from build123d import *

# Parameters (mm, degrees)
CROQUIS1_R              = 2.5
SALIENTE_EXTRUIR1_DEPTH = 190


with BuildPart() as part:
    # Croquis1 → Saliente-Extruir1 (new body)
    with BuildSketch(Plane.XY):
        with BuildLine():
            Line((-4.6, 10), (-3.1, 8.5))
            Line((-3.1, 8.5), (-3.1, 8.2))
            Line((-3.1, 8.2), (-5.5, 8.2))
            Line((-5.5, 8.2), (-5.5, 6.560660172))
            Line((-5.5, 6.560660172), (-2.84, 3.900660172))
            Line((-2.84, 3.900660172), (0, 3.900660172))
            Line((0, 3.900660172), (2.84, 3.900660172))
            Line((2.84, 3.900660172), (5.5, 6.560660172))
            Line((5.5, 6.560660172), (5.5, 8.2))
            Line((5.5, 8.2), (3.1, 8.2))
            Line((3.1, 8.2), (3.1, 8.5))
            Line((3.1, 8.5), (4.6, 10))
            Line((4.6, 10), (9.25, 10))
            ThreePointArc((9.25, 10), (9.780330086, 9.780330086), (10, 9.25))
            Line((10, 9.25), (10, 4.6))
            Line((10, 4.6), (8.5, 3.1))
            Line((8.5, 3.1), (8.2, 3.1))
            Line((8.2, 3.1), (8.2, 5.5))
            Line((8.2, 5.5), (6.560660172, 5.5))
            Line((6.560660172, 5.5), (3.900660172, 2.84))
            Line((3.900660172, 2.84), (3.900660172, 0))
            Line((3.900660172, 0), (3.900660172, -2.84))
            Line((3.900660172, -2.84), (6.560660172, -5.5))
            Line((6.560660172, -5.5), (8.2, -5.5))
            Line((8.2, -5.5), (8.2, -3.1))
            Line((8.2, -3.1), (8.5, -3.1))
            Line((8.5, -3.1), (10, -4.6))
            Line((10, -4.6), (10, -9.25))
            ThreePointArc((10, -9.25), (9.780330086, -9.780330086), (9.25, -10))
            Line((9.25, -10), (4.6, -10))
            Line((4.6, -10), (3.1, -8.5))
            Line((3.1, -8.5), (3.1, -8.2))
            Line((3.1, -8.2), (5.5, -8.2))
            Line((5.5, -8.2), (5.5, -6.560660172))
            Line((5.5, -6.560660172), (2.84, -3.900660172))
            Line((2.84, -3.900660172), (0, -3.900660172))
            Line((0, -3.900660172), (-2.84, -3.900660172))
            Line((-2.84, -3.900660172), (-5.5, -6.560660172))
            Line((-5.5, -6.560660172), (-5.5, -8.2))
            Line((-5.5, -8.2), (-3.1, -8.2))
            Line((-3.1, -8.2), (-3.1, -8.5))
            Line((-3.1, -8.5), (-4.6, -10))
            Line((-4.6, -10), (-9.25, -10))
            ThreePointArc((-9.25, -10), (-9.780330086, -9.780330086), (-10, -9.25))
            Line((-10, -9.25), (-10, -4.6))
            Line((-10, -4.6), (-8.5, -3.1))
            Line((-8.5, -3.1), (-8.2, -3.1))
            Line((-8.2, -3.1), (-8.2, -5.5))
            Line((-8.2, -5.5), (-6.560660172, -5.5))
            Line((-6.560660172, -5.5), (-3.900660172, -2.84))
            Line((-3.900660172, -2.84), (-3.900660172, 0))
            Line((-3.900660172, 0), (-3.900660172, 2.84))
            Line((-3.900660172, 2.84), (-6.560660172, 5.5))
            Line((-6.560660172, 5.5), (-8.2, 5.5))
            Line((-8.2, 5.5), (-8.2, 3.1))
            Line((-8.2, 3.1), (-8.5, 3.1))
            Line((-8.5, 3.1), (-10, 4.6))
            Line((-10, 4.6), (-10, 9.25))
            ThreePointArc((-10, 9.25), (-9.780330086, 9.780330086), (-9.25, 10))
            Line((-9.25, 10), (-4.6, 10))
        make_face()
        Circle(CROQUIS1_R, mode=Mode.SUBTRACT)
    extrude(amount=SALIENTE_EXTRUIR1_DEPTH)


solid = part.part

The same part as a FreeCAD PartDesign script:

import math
import FreeCAD as App
import Part
import Sketcher
Q = App.Units.Quantity

doc = App.newDocument("Part")
params = doc.addObject("Spreadsheet::Sheet", "Params")
for row, (alias, value) in enumerate([
    ("sketch1_diameter", "5 mm"),
    ("sketch1_radius", "0.75 mm"),
    ("sketch1_width", "0.3 mm"),
    ("sketch1_width2", "2.4 mm"),
    ("sketch1_width3", "4.65 mm"),
    ("pad1_length", "190 mm"),
], start=1):
    params.set(f"A{row}", alias)
    params.set(f"B{row}", "=" + value)
    params.setAlias(f"B{row}", alias)

body = doc.addObject("PartDesign::Body", "Body")

# Sketch on XY plane
sketch1 = body.newObject("Sketcher::SketchObject", "Sketch")
sketch1.AttachmentSupport = (doc.getObject("XY_Plane"), [""])
sketch1.MapMode = "FlatFace"
sketch1.addGeometry([
    Part.LineSegment(App.Vector(-3.1, 8.5, 0), App.Vector(-4.6, 10, 0)),  # 0
    Part.LineSegment(App.Vector(-4.6, 10, 0), App.Vector(-9.25, 10, 0)),  # 1
    Part.ArcOfCircle(Part.Circle(App.Vector(-9.25, 9.25, 0), App.Vector(0, 0, 1), 0.75), math.radians(90), math.radians(180)),  # 2
    Part.LineSegment(App.Vector(-10, 9.25, 0), App.Vector(-10, 4.6, 0)),  # 3
    Part.LineSegment(App.Vector(-10, 4.6, 0), App.Vector(-8.5, 3.1, 0)),  # 4
    Part.LineSegment(App.Vector(-8.5, 3.1, 0), App.Vector(-8.2, 3.1, 0)),  # 5
    Part.LineSegment(App.Vector(-8.2, 3.1, 0), App.Vector(-8.2, 5.5, 0)),  # 6
    Part.LineSegment(App.Vector(-8.2, 5.5, 0), App.Vector(-6.56, 5.5, 0)),  # 7
    Part.LineSegment(App.Vector(-6.56, 5.5, 0), App.Vector(-3.9, 2.84, 0)),  # 8
    Part.LineSegment(App.Vector(-3.9, 2.84, 0), App.Vector(-3.9, -2.84, 0)),  # 9
    Part.LineSegment(App.Vector(-3.9, -2.84, 0), App.Vector(-6.56, -5.5, 0)),  # 10
    Part.LineSegment(App.Vector(-6.56, -5.5, 0), App.Vector(-8.2, -5.5, 0)),  # 11
    Part.LineSegment(App.Vector(-8.2, -5.5, 0), App.Vector(-8.2, -3.1, 0)),  # 12
    Part.LineSegment(App.Vector(-8.2, -3.1, 0), App.Vector(-8.5, -3.1, 0)),  # 13
    Part.LineSegment(App.Vector(-8.5, -3.1, 0), App.Vector(-10, -4.6, 0)),  # 14
    Part.LineSegment(App.Vector(-10, -4.6, 0), App.Vector(-10, -9.25, 0)),  # 15
    Part.ArcOfCircle(Part.Circle(App.Vector(-9.25, -9.25, 0), App.Vector(0, 0, 1), 0.75), math.radians(180), math.radians(270)),  # 16
    Part.LineSegment(App.Vector(-9.25, -10, 0), App.Vector(-4.6, -10, 0)),  # 17
    Part.LineSegment(App.Vector(-4.6, -10, 0), App.Vector(-3.1, -8.5, 0)),  # 18
    Part.LineSegment(App.Vector(-3.1, -8.5, 0), App.Vector(-3.1, -8.2, 0)),  # 19
    Part.LineSegment(App.Vector(-3.1, -8.2, 0), App.Vector(-5.5, -8.2, 0)),  # 20
    Part.LineSegment(App.Vector(-5.5, -8.2, 0), App.Vector(-5.5, -6.56, 0)),  # 21
    Part.LineSegment(App.Vector(-5.5, -6.56, 0), App.Vector(-2.84, -3.9, 0)),  # 22
    Part.LineSegment(App.Vector(-2.84, -3.9, 0), App.Vector(2.84, -3.9, 0)),  # 23
    Part.LineSegment(App.Vector(2.84, -3.9, 0), App.Vector(5.5, -6.56, 0)),  # 24
    Part.LineSegment(App.Vector(5.5, -6.56, 0), App.Vector(5.5, -8.2, 0)),  # 25
    Part.LineSegment(App.Vector(5.5, -8.2, 0), App.Vector(3.1, -8.2, 0)),  # 26
    Part.LineSegment(App.Vector(3.1, -8.2, 0), App.Vector(3.1, -8.5, 0)),  # 27
    Part.LineSegment(App.Vector(3.1, -8.5, 0), App.Vector(4.6, -10, 0)),  # 28
    Part.LineSegment(App.Vector(4.6, -10, 0), App.Vector(9.25, -10, 0)),  # 29
    Part.ArcOfCircle(Part.Circle(App.Vector(9.25, -9.25, 0), App.Vector(0, 0, 1), 0.75), math.radians(-90), math.radians(0)),  # 30
    Part.LineSegment(App.Vector(10, -9.25, 0), App.Vector(10, -4.6, 0)),  # 31
    Part.LineSegment(App.Vector(10, -4.6, 0), App.Vector(8.5, -3.1, 0)),  # 32
    Part.LineSegment(App.Vector(8.5, -3.1, 0), App.Vector(8.2, -3.1, 0)),  # 33
    Part.LineSegment(App.Vector(8.2, -3.1, 0), App.Vector(8.2, -5.5, 0)),  # 34
    Part.LineSegment(App.Vector(8.2, -5.5, 0), App.Vector(6.56, -5.5, 0)),  # 35
    Part.LineSegment(App.Vector(6.56, -5.5, 0), App.Vector(3.9, -2.84, 0)),  # 36
    Part.LineSegment(App.Vector(3.9, -2.84, 0), App.Vector(3.9, 2.84, 0)),  # 37
    Part.LineSegment(App.Vector(3.9, 2.84, 0), App.Vector(6.56, 5.5, 0)),  # 38
    Part.LineSegment(App.Vector(6.56, 5.5, 0), App.Vector(8.2, 5.5, 0)),  # 39
    Part.LineSegment(App.Vector(8.2, 5.5, 0), App.Vector(8.2, 3.1, 0)),  # 40
    Part.LineSegment(App.Vector(8.2, 3.1, 0), App.Vector(8.5, 3.1, 0)),  # 41
    Part.LineSegment(App.Vector(8.5, 3.1, 0), App.Vector(10, 4.6, 0)),  # 42
    Part.LineSegment(App.Vector(10, 4.6, 0), App.Vector(10, 9.25, 0)),  # 43
    Part.ArcOfCircle(Part.Circle(App.Vector(9.25, 9.25, 0), App.Vector(0, 0, 1), 0.75), math.radians(0), math.radians(90)),  # 44
    Part.LineSegment(App.Vector(9.25, 10, 0), App.Vector(4.6, 10, 0)),  # 45
    Part.LineSegment(App.Vector(4.6, 10, 0), App.Vector(3.1, 8.5, 0)),  # 46
    Part.LineSegment(App.Vector(3.1, 8.5, 0), App.Vector(3.1, 8.2, 0)),  # 47
    Part.LineSegment(App.Vector(3.1, 8.2, 0), App.Vector(5.5, 8.2, 0)),  # 48
    Part.LineSegment(App.Vector(5.5, 8.2, 0), App.Vector(5.5, 6.56, 0)),  # 49
    Part.LineSegment(App.Vector(5.5, 6.56, 0), App.Vector(2.84, 3.9, 0)),  # 50
    Part.LineSegment(App.Vector(2.84, 3.9, 0), App.Vector(-2.84, 3.9, 0)),  # 51
    Part.LineSegment(App.Vector(-2.84, 3.9, 0), App.Vector(-5.5, 6.56, 0)),  # 52
    Part.LineSegment(App.Vector(-5.5, 6.56, 0), App.Vector(-5.5, 8.2, 0)),  # 53
    Part.LineSegment(App.Vector(-5.5, 8.2, 0), App.Vector(-3.1, 8.2, 0)),  # 54
    Part.LineSegment(App.Vector(-3.1, 8.2, 0), App.Vector(-3.1, 8.5, 0)),  # 55
    Part.Circle(App.Vector(0, 0, 0), App.Vector(0, 0, 1), 2.5),  # 56
], False)
sketch1.addConstraint([
    Sketcher.Constraint("Coincident", 0, 2, 1, 1),
    Sketcher.Constraint("Tangent", 1, 2, 2, 1),
    Sketcher.Constraint("Tangent", 2, 2, 3, 1),
    Sketcher.Constraint("Coincident", 3, 2, 4, 1),
    Sketcher.Constraint("Coincident", 4, 2, 5, 1),
    Sketcher.Constraint("Coincident", 5, 2, 6, 1),
    Sketcher.Constraint("Coincident", 6, 2, 7, 1),
    Sketcher.Constraint("Coincident", 7, 2, 8, 1),
    Sketcher.Constraint("Coincident", 8, 2, 9, 1),
    Sketcher.Constraint("Coincident", 9, 2, 10, 1),
    Sketcher.Constraint("Coincident", 10, 2, 11, 1),
    Sketcher.Constraint("Coincident", 11, 2, 12, 1),
    Sketcher.Constraint("Coincident", 12, 2, 13, 1),
    Sketcher.Constraint("Coincident", 13, 2, 14, 1),
    Sketcher.Constraint("Coincident", 14, 2, 15, 1),
    Sketcher.Constraint("Tangent", 15, 2, 16, 1),
    Sketcher.Constraint("Tangent", 16, 2, 17, 1),
    Sketcher.Constraint("Coincident", 17, 2, 18, 1),
    Sketcher.Constraint("Coincident", 18, 2, 19, 1),
    Sketcher.Constraint("Coincident", 19, 2, 20, 1),
    Sketcher.Constraint("Coincident", 20, 2, 21, 1),
    Sketcher.Constraint("Coincident", 21, 2, 22, 1),
    Sketcher.Constraint("Coincident", 22, 2, 23, 1),
    Sketcher.Constraint("Coincident", 23, 2, 24, 1),
    Sketcher.Constraint("Coincident", 24, 2, 25, 1),
    Sketcher.Constraint("Coincident", 25, 2, 26, 1),
    Sketcher.Constraint("Coincident", 26, 2, 27, 1),
    Sketcher.Constraint("Coincident", 27, 2, 28, 1),
    Sketcher.Constraint("Coincident", 28, 2, 29, 1),
    Sketcher.Constraint("Tangent", 29, 2, 30, 1),
    Sketcher.Constraint("Tangent", 30, 2, 31, 1),
    Sketcher.Constraint("Coincident", 31, 2, 32, 1),
    Sketcher.Constraint("Coincident", 32, 2, 33, 1),
    Sketcher.Constraint("Coincident", 33, 2, 34, 1),
    Sketcher.Constraint("Coincident", 34, 2, 35, 1),
    Sketcher.Constraint("Coincident", 35, 2, 36, 1),
    Sketcher.Constraint("Coincident", 36, 2, 37, 1),
    Sketcher.Constraint("Coincident", 37, 2, 38, 1),
    Sketcher.Constraint("Coincident", 38, 2, 39, 1),
    Sketcher.Constraint("Coincident", 39, 2, 40, 1),
    Sketcher.Constraint("Coincident", 40, 2, 41, 1),
    Sketcher.Constraint("Coincident", 41, 2, 42, 1),
    Sketcher.Constraint("Coincident", 42, 2, 43, 1),
    Sketcher.Constraint("Tangent", 43, 2, 44, 1),
    Sketcher.Constraint("Tangent", 44, 2, 45, 1),
    Sketcher.Constraint("Coincident", 45, 2, 46, 1),
    Sketcher.Constraint("Coincident", 46, 2, 47, 1),
    Sketcher.Constraint("Coincident", 47, 2, 48, 1),
    Sketcher.Constraint("Coincident", 48, 2, 49, 1),
    Sketcher.Constraint("Coincident", 49, 2, 50, 1),
    Sketcher.Constraint("Coincident", 50, 2, 51, 1),
    Sketcher.Constraint("Coincident", 51, 2, 52, 1),
    Sketcher.Constraint("Coincident", 52, 2, 53, 1),
    Sketcher.Constraint("Coincident", 53, 2, 54, 1),
    Sketcher.Constraint("Coincident", 54, 2, 55, 1),
    Sketcher.Constraint("Coincident", 55, 2, 0, 1),
    Sketcher.Constraint("Horizontal", 1),
    Sketcher.Constraint("Vertical", 3),
    Sketcher.Constraint("Horizontal", 5),
    Sketcher.Constraint("Vertical", 6),
    Sketcher.Constraint("Horizontal", 7),
    Sketcher.Constraint("Vertical", 9),
    Sketcher.Constraint("Horizontal", 11),
    Sketcher.Constraint("Vertical", 12),
    Sketcher.Constraint("Horizontal", 13),
    Sketcher.Constraint("Vertical", 15),
    Sketcher.Constraint("Horizontal", 17),
    Sketcher.Constraint("Vertical", 19),
    Sketcher.Constraint("Horizontal", 20),
    Sketcher.Constraint("Vertical", 21),
    Sketcher.Constraint("Horizontal", 23),
    Sketcher.Constraint("Vertical", 25),
    Sketcher.Constraint("Horizontal", 26),
    Sketcher.Constraint("Vertical", 27),
    Sketcher.Constraint("Horizontal", 29),
    Sketcher.Constraint("Vertical", 31),
    Sketcher.Constraint("Horizontal", 33),
    Sketcher.Constraint("Vertical", 34),
    Sketcher.Constraint("Horizontal", 35),
    Sketcher.Constraint("Vertical", 37),
    Sketcher.Constraint("Horizontal", 39),
    Sketcher.Constraint("Vertical", 40),
    Sketcher.Constraint("Horizontal", 41),
    Sketcher.Constraint("Vertical", 43),
    Sketcher.Constraint("Horizontal", 45),
    Sketcher.Constraint("Vertical", 47),
    Sketcher.Constraint("Horizontal", 48),
    Sketcher.Constraint("Vertical", 49),
    Sketcher.Constraint("Horizontal", 51),
    Sketcher.Constraint("Vertical", 53),
    Sketcher.Constraint("Horizontal", 54),
    Sketcher.Constraint("Vertical", 55),
    Sketcher.Constraint("Coincident", 56, 3, -1, 1),
    Sketcher.Constraint("Equal", 2, 16),
    Sketcher.Constraint("Equal", 16, 30),
    Sketcher.Constraint("Equal", 30, 44),
    Sketcher.Constraint("Symmetric", 2, 3, 30, 3, -1, 1),
    Sketcher.Constraint("Symmetric", 16, 3, 44, 3, -1, 1),
    Sketcher.Constraint("Symmetric", 4, 2, 32, 2, -1, 1),
    Sketcher.Constraint("Symmetric", 6, 2, 34, 2, -1, 1),
    Sketcher.Constraint("Symmetric", 8, 2, 36, 2, -1, 1),
    Sketcher.Constraint("Symmetric", 10, 2, 38, 2, -1, 1),
    Sketcher.Constraint("Symmetric", 12, 2, 40, 2, -1, 1),
    Sketcher.Constraint("Symmetric", 18, 2, 46, 2, -1, 1),
    Sketcher.Constraint("Symmetric", 20, 2, 48, 2, -1, 1),
    Sketcher.Constraint("Symmetric", 22, 2, 50, 2, -1, 1),
    Sketcher.Constraint("Symmetric", 24, 2, 52, 2, -1, 1),
    Sketcher.Constraint("Symmetric", 26, 2, 54, 2, -1, 1),
    Sketcher.Constraint("Symmetric", 16, 3, 30, 3, -2),
    Sketcher.Constraint("Symmetric", 21, 2, 24, 2, -2),
    Sketcher.Constraint("Symmetric", 19, 2, 26, 2, -2),
    Sketcher.Constraint("Symmetric", 13, 2, 32, 2, -2),
    Sketcher.Constraint("Symmetric", 11, 2, 34, 2, -2),
    Sketcher.Constraint("Parallel", 0, 4),
    Sketcher.Constraint("Parallel", 4, 8),
    Sketcher.Constraint("Perpendicular", 8, 10),
    Sketcher.Constraint("Parallel", 10, 14),
    Sketcher.Constraint("Parallel", 14, 18),
    Sketcher.Constraint("Parallel", 18, 22),
    Sketcher.Constraint("Perpendicular", 22, 24),
    Sketcher.Constraint("Parallel", 24, 28),
    Sketcher.Constraint("Parallel", 28, 32),
    Sketcher.Constraint("Parallel", 32, 36),
    Sketcher.Constraint("Perpendicular", 36, 38),
    Sketcher.Constraint("Parallel", 38, 42),
    Sketcher.Constraint("Parallel", 42, 46),
    Sketcher.Constraint("Parallel", 46, 50),
    Sketcher.Constraint("Perpendicular", 50, 52),
    Sketcher.Constraint("Horizontal", 18, 2, 27, 2),
    Sketcher.Constraint("Horizontal", 14, 2, 31, 2),
    Sketcher.Constraint("Horizontal", 9, 2, 36, 2),
    Sketcher.Constraint("Horizontal", 3, 2, 42, 2),
    Sketcher.Constraint("Horizontal", 46, 2, 55, 2),
    Sketcher.Constraint("Equal", 45, 3),
    Sketcher.Constraint("Equal", 54, 6),
    Sketcher.Constraint("Equal", 51, 9),
    Sketcher.Constraint("Equal", 41, 19),
    Sketcher.Constraint("Equal", 39, 21),
    Sketcher.Constraint("Equal", 0, 4),
    Sketcher.Constraint("Equal", 10, 22),
    Sketcher.Constraint("Diameter", 56, Q("5 mm")),
    Sketcher.Constraint("Radius", 2, Q("0.75 mm")),
    Sketcher.Constraint("DistanceX", 5, 1, 5, 2, Q("0.3 mm")),
    Sketcher.Constraint("DistanceX", 20, 2, 20, 1, Q("2.4 mm")),
    Sketcher.Constraint("DistanceY", -1, 1, 0, 2, Q("10 mm")),
    Sketcher.Constraint("DistanceX", 1, 2, 1, 1, Q("4.65 mm")),
    Sketcher.Constraint("DistanceX", 23, 1, 23, 2, Q("5.68 mm")),
    Sketcher.Constraint("DistanceX", 4, 2, -1, 1, Q("8.5 mm")),
    Sketcher.Constraint("DistanceX", 7, 1, 7, 2, Q("1.63934 mm")),
])
sketch1.setExpression("Constraints[140]", "Params.sketch1_diameter")
sketch1.setExpression("Constraints[141]", "Params.sketch1_radius")
sketch1.setExpression("Constraints[142]", "Params.sketch1_width")
sketch1.setExpression("Constraints[143]", "Params.sketch1_width2")
sketch1.setExpression("Constraints[145]", "Params.sketch1_width3")
pad1 = body.newObject("PartDesign::Pad", "Pad")
pad1.Profile = sketch1
pad1.setExpression("Length", "Params.pad1_length")

doc.recompute()
